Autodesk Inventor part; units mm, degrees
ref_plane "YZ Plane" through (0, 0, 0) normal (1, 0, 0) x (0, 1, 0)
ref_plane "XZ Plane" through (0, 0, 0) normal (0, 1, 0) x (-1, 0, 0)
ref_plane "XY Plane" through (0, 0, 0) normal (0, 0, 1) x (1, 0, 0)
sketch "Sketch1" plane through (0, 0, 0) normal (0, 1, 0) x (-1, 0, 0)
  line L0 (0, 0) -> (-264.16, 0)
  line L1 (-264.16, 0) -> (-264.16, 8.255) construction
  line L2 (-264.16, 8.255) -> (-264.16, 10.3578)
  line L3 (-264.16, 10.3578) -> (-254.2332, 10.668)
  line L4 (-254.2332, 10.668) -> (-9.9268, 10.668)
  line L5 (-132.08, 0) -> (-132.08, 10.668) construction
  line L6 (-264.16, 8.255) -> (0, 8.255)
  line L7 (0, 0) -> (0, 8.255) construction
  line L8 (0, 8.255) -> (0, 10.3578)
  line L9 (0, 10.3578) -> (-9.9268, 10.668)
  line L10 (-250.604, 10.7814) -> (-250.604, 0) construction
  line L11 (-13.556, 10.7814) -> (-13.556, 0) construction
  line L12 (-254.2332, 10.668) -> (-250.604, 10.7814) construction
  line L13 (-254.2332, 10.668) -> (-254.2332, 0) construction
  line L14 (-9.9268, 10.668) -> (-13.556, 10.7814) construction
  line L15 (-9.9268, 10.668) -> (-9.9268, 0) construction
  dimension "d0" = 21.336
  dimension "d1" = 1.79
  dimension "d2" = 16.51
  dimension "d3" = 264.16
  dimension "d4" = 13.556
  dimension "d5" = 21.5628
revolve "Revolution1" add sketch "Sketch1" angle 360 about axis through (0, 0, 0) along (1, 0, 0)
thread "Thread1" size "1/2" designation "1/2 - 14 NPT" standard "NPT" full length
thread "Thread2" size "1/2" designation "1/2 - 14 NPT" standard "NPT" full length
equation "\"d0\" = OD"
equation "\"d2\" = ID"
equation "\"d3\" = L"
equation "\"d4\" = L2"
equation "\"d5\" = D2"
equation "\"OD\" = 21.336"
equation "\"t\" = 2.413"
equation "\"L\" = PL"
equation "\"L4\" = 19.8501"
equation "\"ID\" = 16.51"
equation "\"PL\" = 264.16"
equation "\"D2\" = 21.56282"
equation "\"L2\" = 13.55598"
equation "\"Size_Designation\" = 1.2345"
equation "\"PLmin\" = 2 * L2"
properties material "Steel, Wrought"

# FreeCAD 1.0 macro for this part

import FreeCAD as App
import Part
import Sketcher

V = App.Vector
Q = App.Units.Quantity

doc = App.newDocument("Part")
params = doc.addObject("Spreadsheet::Sheet", "Params")
for row, (alias, value) in enumerate([
    ("sketch1_width", "10.4 in"),
    ("sketch1_length", "0.391 in"),
    ("revolution_angle", "360 deg"),
], start=1):
    params.set(f"A{row}", alias)
    params.set(f"B{row}", "=" + value)
    params.setAlias(f"B{row}", alias)

body = doc.addObject("PartDesign::Body", "Body")

sketch1 = body.newObject("Sketcher::SketchObject", "Sketch")
sketch1.AttachmentSupport = (doc.getObject("XZ_Plane"), [""])
sketch1.MapMode = "FlatFace"
sketch1.addGeometry(Part.LineSegment(V(264.2, 10.4, 0), V(264.2, 8.3, 0)), False)
sketch1.addGeometry(Part.LineSegment(V(264.2, 8.3, 0), V(0, 8.3, 0)), False)
sketch1.addGeometry(Part.LineSegment(V(0, 8.3, 0), V(0, 10.4, 0)), False)
sketch1.addGeometry(Part.LineSegment(V(0, 10.4, 0), V(9.9, 10.7, 0)), False)
sketch1.addGeometry(Part.LineSegment(V(9.9, 10.7, 0), V(254.2, 10.7, 0)), False)
sketch1.addGeometry(Part.LineSegment(V(254.2, 10.7, 0), V(264.2, 10.4, 0)), False)
sketch1.addConstraint(Sketcher.Constraint("Coincident", 0, 2, 1, 1))
sketch1.addConstraint(Sketcher.Constraint("Coincident", 1, 2, 2, 1))
sketch1.addConstraint(Sketcher.Constraint("Coincident", 2, 2, 3, 1))
sketch1.addConstraint(Sketcher.Constraint("Coincident", 3, 2, 4, 1))
sketch1.addConstraint(Sketcher.Constraint("Coincident", 4, 2, 5, 1))
sketch1.addConstraint(Sketcher.Constraint("Coincident", 5, 2, 0, 1))
sketch1.addConstraint(Sketcher.Constraint("Vertical", 0))
sketch1.addConstraint(Sketcher.Constraint("Horizontal", 1))
sketch1.addConstraint(Sketcher.Constraint("Vertical", 2))
sketch1.addConstraint(Sketcher.Constraint("Horizontal", 4))
sketch1.addConstraint(Sketcher.Constraint("PointOnObject", 1, 2, -2))
sketch1.addConstraint(Sketcher.Constraint("Horizontal", 2, 2, 5, 2))
sketch1.addConstraint(Sketcher.Constraint("Equal", 3, 5))
sketch1.addConstraint(Sketcher.Constraint("DistanceX", 1, 2, 1, 1, Q("10.4 in")))
sketch1.addConstraint(Sketcher.Constraint("Angle", 3, Q("1.7898 deg")))
sketch1.addConstraint(Sketcher.Constraint("DistanceY", -1, 1, 3, 2, Q("0.42 in")))
sketch1.addConstraint(Sketcher.Constraint("Distance", 3, Q("0.391 in")))
sketch1.addConstraint(Sketcher.Constraint("DistanceY", -1, 1, 0, 2, Q("0.325 in")))
sketch1.setExpression("Constraints[13]", "Params.sketch1_width")
sketch1.setExpression("Constraints[16]", "Params.sketch1_length")
revolution = body.newObject("PartDesign::Revolution", "Revolution")
revolution.Profile = sketch1
revolution.ReferenceAxis = (sketch1, ["H_Axis"])
revolution.setExpression("Angle", "Params.revolution_angle")

doc.recompute()
